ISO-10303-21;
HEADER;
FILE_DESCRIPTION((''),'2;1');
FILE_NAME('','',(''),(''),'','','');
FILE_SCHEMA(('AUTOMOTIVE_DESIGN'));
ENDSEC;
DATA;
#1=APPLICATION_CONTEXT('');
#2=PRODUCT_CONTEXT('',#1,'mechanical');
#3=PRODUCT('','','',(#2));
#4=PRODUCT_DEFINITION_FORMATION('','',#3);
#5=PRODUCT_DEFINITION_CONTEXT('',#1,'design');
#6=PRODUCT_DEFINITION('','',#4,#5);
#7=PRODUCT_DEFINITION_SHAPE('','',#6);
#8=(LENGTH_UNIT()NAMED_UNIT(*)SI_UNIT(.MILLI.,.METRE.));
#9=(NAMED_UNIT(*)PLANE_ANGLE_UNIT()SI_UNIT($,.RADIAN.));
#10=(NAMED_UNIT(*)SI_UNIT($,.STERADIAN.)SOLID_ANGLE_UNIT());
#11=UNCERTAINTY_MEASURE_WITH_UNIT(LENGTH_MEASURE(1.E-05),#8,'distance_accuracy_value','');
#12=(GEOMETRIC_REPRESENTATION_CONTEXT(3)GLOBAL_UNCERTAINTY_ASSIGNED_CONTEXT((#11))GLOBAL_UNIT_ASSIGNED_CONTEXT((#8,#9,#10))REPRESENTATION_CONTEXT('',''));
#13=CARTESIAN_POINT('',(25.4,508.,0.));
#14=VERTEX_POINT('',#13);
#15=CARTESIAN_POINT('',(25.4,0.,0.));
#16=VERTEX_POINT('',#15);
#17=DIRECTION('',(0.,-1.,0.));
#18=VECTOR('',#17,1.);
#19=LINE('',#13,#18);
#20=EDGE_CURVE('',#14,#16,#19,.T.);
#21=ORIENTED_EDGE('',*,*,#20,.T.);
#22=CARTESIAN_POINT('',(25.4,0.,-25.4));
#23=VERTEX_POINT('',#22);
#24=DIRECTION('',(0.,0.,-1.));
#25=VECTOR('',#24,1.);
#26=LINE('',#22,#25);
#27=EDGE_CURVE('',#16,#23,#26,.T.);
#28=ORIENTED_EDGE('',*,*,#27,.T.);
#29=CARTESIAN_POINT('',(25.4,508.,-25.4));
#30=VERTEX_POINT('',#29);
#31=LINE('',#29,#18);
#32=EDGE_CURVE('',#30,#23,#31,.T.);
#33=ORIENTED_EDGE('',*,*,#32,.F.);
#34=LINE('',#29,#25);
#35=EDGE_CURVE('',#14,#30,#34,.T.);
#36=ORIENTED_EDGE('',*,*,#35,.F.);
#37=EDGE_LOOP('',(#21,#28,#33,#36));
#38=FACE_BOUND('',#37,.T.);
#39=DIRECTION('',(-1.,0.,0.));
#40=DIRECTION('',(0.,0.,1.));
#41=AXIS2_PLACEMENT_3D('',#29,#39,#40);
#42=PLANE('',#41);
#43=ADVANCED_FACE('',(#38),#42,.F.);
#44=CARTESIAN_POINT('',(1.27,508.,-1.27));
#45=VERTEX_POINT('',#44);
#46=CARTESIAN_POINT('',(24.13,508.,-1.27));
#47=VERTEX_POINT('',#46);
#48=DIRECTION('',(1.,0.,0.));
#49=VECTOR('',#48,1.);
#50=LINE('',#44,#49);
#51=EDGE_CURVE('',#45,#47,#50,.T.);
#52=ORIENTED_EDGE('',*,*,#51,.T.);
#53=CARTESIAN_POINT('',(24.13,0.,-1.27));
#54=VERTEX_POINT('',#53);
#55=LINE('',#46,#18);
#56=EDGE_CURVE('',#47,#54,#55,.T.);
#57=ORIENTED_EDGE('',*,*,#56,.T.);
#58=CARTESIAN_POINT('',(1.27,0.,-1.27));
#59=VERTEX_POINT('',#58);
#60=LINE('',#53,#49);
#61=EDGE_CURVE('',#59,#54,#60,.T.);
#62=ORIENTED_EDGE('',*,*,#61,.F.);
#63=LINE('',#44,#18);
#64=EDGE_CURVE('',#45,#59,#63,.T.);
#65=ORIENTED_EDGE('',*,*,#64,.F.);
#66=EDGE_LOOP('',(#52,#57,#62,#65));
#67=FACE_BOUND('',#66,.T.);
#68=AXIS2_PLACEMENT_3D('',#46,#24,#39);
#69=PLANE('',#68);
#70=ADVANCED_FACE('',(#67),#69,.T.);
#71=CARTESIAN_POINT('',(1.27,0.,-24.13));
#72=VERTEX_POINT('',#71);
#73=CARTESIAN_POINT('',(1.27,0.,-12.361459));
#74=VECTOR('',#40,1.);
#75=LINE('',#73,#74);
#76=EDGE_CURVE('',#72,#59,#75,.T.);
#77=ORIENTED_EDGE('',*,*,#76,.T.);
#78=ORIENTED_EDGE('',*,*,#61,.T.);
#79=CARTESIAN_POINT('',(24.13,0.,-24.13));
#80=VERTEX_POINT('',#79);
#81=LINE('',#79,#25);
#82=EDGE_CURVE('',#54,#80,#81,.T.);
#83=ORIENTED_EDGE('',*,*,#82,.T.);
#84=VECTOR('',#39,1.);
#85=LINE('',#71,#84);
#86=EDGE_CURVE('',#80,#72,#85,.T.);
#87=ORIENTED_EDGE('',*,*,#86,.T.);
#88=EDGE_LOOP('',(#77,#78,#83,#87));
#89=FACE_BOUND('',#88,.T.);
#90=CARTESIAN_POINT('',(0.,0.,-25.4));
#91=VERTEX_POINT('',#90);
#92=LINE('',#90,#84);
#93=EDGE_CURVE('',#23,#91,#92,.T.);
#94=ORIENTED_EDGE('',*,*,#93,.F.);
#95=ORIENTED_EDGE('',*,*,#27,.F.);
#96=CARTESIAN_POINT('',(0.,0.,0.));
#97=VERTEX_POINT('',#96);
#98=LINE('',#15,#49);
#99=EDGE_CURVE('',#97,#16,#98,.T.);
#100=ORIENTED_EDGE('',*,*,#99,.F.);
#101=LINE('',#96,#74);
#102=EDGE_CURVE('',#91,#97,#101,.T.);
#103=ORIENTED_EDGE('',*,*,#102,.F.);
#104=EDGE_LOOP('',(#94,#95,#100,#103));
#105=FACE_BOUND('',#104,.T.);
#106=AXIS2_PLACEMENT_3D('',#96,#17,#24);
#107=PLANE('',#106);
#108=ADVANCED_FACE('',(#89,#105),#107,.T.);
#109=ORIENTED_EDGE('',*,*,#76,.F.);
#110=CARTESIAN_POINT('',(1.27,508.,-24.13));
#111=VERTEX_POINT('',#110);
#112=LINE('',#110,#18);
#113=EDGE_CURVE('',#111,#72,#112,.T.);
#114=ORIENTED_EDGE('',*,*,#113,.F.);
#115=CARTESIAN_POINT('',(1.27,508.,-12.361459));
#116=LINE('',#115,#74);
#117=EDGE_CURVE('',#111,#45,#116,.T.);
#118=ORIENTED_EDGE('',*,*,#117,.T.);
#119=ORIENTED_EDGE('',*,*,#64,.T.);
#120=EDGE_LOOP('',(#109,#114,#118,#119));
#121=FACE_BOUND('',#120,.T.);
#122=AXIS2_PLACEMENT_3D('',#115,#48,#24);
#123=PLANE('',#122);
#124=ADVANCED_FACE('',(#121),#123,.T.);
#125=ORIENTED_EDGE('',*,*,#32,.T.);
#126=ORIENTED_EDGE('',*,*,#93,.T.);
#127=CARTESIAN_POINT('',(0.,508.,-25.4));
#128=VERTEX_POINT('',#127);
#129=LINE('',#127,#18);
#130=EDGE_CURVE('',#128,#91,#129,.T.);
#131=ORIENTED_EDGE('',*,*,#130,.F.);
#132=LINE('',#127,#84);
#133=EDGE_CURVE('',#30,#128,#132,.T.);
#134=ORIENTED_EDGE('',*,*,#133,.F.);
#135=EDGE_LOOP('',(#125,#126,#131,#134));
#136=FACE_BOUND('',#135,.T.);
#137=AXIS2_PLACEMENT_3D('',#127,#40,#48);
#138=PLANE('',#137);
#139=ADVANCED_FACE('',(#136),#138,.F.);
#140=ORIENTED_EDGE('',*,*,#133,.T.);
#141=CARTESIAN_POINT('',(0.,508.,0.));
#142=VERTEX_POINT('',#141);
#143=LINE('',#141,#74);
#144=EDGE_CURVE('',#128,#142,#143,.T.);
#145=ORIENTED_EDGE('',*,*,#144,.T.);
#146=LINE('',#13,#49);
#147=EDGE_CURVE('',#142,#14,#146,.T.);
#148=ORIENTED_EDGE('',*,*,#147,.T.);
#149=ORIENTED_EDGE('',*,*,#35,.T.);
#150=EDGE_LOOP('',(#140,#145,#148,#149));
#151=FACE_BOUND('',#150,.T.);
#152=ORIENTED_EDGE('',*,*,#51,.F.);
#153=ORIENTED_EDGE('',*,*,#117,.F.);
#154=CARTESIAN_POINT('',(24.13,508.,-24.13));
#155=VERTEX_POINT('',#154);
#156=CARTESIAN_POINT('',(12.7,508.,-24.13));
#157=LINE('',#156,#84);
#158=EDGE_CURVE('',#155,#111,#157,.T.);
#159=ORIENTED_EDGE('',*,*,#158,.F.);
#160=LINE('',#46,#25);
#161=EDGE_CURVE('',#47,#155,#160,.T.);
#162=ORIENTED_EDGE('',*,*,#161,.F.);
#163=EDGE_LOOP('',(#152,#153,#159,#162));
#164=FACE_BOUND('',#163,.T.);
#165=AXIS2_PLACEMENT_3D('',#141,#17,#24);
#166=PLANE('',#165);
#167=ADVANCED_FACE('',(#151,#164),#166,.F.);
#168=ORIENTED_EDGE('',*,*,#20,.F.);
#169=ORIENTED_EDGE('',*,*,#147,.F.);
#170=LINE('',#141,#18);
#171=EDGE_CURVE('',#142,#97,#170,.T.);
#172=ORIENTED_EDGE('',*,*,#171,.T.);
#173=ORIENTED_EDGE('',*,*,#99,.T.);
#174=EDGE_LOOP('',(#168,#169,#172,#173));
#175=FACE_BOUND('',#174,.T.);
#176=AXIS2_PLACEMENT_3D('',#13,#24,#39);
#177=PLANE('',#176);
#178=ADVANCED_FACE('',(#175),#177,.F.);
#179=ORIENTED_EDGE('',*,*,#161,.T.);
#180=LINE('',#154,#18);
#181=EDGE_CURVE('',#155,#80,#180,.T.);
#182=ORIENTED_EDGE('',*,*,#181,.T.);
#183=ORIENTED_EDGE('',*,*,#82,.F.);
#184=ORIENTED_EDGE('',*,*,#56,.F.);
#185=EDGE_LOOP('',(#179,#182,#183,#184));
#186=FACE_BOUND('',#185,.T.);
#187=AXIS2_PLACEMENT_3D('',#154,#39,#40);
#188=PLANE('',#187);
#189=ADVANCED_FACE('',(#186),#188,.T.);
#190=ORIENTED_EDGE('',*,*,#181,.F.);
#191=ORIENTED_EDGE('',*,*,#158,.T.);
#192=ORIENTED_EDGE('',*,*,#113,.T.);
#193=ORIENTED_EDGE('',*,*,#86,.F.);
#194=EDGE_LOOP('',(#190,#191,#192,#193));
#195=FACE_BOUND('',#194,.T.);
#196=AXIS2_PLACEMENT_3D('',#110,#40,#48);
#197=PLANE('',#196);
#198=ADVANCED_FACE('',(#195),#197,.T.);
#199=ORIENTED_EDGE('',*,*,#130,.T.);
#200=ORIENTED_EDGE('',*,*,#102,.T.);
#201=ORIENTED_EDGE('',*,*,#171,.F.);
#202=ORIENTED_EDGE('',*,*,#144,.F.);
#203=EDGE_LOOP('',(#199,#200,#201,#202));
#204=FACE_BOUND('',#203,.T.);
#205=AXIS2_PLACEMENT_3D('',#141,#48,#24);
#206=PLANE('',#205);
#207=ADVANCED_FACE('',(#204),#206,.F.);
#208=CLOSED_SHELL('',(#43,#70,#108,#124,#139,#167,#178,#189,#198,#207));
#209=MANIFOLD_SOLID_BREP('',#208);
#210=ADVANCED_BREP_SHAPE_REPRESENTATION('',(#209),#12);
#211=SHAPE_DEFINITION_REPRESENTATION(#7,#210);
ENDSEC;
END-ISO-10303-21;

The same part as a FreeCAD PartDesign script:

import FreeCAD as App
import Part
import Sketcher
Q = App.Units.Quantity

doc = App.newDocument("Part")
body = doc.addObject("PartDesign::Body", "Body")

# Sketch on XZ plane
sketch1 = doc.addObject("Sketcher::SketchObject", "Sketch")
body.addObject(sketch1)
sketch1.AttachmentSupport = (doc.XZ_Plane, [""])
sketch1.MapMode = "FlatFace"
sketch1.addGeometry([
    Part.LineSegment(App.Vector(0, -25, 0), App.Vector(0, 0, 0)),  # 0
    Part.LineSegment(App.Vector(0, 0, 0), App.Vector(25, 0, 0)),  # 1
    Part.LineSegment(App.Vector(25, 0, 0), App.Vector(25, -25, 0)),  # 2
    Part.LineSegment(App.Vector(25, -25, 0), App.Vector(0, -25, 0)),  # 3
    Part.LineSegment(App.Vector(1, -1, 0), App.Vector(1, -24, 0)),  # 4
    Part.LineSegment(App.Vector(1, -24, 0), App.Vector(24, -24, 0)),  # 5
    Part.LineSegment(App.Vector(24, -24, 0), App.Vector(24, -1, 0)),  # 6
    Part.LineSegment(App.Vector(24, -1, 0), App.Vector(1, -1, 0)),  # 7
], False)
sketch1.addConstraint([
    Sketcher.Constraint("Coincident", 0, 2, 1, 1),
    Sketcher.Constraint("Coincident", 1, 2, 2, 1),
    Sketcher.Constraint("Coincident", 2, 2, 3, 1),
    Sketcher.Constraint("Coincident", 3, 2, 0, 1),
    Sketcher.Constraint("Coincident", 4, 2, 5, 1),
    Sketcher.Constraint("Coincident", 5, 2, 6, 1),
    Sketcher.Constraint("Coincident", 6, 2, 7, 1),
    Sketcher.Constraint("Coincident", 7, 2, 4, 1),
    Sketcher.Constraint("Vertical", 0),
    Sketcher.Constraint("Horizontal", 1),
    Sketcher.Constraint("Vertical", 2),
    Sketcher.Constraint("Horizontal", 3),
    Sketcher.Constraint("Vertical", 4),
    Sketcher.Constraint("Horizontal", 5),
    Sketcher.Constraint("Vertical", 6),
    Sketcher.Constraint("Horizontal", 7),
    Sketcher.Constraint("Coincident", 0, 2, -1, 1),
    Sketcher.Constraint("Equal", 3, 0),
    Sketcher.Constraint("Equal", 7, 4),
    Sketcher.Constraint("DistanceX", 1, 1, 1, 2, Q("1 in")),
    Sketcher.Constraint("DistanceX", 5, 1, 5, 2, Q("0.9 in")),
    Sketcher.Constraint("DistanceX", -1, 1, 4, 2, Q("0.05 in")),
    Sketcher.Constraint("DistanceY", 4, 2, -1, 1, Q("0.95 in")),
])
pad1 = doc.addObject("PartDesign::Pad", "Pad")
body.addObject(pad1)
pad1.Profile = sketch1
pad1.Length = Q("20 in")
pad1.Reversed = True

doc.recompute()
